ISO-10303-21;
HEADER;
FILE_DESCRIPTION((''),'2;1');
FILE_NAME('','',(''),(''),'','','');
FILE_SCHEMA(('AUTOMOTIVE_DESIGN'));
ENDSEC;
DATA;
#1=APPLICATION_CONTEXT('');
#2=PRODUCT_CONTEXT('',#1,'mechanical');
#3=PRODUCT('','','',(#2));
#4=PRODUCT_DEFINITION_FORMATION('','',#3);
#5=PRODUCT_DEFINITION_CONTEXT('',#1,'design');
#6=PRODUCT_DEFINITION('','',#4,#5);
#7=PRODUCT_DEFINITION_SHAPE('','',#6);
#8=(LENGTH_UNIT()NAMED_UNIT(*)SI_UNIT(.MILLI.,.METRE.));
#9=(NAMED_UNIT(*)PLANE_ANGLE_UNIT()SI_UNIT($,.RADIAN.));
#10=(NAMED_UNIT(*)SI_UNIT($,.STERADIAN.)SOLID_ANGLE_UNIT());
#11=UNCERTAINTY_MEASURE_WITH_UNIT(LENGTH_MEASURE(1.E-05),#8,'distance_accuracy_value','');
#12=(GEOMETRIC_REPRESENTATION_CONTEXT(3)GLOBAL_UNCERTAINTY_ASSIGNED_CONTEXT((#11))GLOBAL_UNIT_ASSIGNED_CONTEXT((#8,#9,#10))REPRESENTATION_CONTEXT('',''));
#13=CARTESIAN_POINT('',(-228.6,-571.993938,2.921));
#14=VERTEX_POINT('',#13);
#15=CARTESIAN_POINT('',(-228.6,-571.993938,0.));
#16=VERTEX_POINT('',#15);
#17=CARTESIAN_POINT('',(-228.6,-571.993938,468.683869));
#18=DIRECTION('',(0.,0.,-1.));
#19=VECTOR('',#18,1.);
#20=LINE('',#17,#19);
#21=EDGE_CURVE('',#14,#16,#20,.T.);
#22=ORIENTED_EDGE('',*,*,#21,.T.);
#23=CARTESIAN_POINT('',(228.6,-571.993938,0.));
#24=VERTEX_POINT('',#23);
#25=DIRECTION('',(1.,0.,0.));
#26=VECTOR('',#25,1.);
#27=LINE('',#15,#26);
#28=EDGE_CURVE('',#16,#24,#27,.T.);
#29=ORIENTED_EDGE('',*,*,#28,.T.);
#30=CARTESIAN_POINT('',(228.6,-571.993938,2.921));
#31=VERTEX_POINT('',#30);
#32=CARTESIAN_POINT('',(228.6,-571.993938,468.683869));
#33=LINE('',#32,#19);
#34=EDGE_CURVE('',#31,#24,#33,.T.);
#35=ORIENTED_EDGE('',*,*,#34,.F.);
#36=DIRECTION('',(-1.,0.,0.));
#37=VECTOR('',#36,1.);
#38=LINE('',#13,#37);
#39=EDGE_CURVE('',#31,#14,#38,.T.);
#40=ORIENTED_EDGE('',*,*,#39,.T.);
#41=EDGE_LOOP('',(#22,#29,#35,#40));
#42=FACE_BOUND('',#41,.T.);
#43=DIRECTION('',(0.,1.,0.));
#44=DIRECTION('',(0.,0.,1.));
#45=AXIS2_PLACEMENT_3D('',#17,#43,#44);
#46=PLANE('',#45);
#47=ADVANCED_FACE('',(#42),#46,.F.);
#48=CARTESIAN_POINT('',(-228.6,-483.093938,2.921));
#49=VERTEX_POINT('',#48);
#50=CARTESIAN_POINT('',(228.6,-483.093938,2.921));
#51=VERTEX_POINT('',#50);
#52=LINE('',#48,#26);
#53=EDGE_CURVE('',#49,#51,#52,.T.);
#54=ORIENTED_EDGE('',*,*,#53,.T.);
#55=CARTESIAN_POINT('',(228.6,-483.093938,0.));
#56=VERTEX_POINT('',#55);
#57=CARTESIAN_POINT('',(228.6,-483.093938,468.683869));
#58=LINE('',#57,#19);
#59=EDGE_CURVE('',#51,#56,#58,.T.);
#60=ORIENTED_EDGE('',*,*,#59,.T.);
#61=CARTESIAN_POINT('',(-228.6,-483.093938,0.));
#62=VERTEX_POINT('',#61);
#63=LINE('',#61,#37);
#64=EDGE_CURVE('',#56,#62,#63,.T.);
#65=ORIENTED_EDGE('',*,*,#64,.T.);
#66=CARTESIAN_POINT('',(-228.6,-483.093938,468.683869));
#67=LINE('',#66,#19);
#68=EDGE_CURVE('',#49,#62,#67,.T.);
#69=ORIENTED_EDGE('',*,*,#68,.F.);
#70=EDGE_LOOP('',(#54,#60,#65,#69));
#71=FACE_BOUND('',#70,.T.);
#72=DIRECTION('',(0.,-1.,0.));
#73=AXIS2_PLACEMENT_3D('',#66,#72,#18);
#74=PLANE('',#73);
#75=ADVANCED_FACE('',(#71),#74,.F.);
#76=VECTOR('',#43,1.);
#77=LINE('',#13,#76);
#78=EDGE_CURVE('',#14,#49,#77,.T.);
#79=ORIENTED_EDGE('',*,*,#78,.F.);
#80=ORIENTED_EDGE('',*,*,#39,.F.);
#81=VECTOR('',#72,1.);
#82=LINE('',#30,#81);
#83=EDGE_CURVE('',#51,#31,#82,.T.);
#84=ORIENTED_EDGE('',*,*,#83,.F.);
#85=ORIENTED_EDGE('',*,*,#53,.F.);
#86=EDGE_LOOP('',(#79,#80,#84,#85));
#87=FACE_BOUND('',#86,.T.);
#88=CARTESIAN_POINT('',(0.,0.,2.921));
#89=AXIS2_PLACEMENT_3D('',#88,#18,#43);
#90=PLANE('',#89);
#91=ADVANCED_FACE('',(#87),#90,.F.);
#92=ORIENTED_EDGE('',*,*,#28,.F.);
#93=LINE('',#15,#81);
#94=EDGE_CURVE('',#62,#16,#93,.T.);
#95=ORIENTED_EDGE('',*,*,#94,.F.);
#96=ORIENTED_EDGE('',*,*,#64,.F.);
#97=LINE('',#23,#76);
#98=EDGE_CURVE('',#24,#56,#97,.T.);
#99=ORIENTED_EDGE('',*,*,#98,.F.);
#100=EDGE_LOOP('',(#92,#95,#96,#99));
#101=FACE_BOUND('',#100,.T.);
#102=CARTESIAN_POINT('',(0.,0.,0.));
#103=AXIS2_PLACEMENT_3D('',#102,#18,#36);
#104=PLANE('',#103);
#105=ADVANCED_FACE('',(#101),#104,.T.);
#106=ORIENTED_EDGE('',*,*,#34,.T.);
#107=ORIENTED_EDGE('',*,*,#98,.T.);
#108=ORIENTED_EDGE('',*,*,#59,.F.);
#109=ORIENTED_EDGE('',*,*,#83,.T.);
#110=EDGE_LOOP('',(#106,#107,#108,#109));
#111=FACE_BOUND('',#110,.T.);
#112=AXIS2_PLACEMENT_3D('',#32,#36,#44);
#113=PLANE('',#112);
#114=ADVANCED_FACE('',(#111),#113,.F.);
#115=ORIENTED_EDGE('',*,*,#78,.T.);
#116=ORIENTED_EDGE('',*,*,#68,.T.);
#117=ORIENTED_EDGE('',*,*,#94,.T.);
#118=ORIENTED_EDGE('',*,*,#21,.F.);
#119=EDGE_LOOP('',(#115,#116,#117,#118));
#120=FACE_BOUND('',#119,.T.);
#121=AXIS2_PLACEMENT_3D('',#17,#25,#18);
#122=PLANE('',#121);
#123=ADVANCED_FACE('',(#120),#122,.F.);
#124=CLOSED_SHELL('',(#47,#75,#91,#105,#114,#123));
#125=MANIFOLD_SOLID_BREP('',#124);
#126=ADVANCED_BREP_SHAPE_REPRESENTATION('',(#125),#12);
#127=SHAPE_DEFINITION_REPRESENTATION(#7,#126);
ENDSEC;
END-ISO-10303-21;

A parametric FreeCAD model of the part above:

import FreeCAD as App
import Part
import Sketcher
Q = App.Units.Quantity


def add_polygon(sketch, points):
    """Adds a closed chain of lines whose ends are joined by coincident constraints."""
    first, n = sketch.GeometryCount, len(points)
    for a, b in zip(points, points[1:] + points[:1]):
        sketch.addGeometry(Part.LineSegment(App.Vector(*a, 0), App.Vector(*b, 0)), False)
    for i in range(n):
        sketch.addConstraint(Sketcher.Constraint("Coincident", first + i, 2, first + (i + 1) % n, 1))

doc = App.newDocument("Part")
body = doc.addObject("PartDesign::Body", "Body")

sketch1 = body.newObject("Sketcher::SketchObject", "Sketch")
sketch1.AttachmentSupport = (doc.getObject("XY_Plane"), [""])
sketch1.MapMode = "FlatFace"
add_polygon(sketch1, [(-229, -483), (-229, -572), (229, -572), (229, -483)])
sketch1.addConstraint(Sketcher.Constraint("Vertical", 0))
sketch1.addConstraint(Sketcher.Constraint("Horizontal", 1))
sketch1.addConstraint(Sketcher.Constraint("Vertical", 2))
sketch1.addConstraint(Sketcher.Constraint("Horizontal", 3))
sketch1.addConstraint(Sketcher.Constraint("DistanceX", 1, 1, 1, 2, Q("18 in")))
sketch1.addConstraint(Sketcher.Constraint("DistanceY", 0, 2, 0, 1, Q("3.5 in")))
sketch1.addConstraint(Sketcher.Constraint("DistanceX", 0, 2, -1, 1, Q("9 in")))
sketch1.addConstraint(Sketcher.Constraint("DistanceY", 0, 2, -1, 1, 571.993938))
pad1 = body.newObject("PartDesign::Pad", "Pad")
pad1.Profile = sketch1
pad1.Length = Q("0.115 in")

doc.recompute()
